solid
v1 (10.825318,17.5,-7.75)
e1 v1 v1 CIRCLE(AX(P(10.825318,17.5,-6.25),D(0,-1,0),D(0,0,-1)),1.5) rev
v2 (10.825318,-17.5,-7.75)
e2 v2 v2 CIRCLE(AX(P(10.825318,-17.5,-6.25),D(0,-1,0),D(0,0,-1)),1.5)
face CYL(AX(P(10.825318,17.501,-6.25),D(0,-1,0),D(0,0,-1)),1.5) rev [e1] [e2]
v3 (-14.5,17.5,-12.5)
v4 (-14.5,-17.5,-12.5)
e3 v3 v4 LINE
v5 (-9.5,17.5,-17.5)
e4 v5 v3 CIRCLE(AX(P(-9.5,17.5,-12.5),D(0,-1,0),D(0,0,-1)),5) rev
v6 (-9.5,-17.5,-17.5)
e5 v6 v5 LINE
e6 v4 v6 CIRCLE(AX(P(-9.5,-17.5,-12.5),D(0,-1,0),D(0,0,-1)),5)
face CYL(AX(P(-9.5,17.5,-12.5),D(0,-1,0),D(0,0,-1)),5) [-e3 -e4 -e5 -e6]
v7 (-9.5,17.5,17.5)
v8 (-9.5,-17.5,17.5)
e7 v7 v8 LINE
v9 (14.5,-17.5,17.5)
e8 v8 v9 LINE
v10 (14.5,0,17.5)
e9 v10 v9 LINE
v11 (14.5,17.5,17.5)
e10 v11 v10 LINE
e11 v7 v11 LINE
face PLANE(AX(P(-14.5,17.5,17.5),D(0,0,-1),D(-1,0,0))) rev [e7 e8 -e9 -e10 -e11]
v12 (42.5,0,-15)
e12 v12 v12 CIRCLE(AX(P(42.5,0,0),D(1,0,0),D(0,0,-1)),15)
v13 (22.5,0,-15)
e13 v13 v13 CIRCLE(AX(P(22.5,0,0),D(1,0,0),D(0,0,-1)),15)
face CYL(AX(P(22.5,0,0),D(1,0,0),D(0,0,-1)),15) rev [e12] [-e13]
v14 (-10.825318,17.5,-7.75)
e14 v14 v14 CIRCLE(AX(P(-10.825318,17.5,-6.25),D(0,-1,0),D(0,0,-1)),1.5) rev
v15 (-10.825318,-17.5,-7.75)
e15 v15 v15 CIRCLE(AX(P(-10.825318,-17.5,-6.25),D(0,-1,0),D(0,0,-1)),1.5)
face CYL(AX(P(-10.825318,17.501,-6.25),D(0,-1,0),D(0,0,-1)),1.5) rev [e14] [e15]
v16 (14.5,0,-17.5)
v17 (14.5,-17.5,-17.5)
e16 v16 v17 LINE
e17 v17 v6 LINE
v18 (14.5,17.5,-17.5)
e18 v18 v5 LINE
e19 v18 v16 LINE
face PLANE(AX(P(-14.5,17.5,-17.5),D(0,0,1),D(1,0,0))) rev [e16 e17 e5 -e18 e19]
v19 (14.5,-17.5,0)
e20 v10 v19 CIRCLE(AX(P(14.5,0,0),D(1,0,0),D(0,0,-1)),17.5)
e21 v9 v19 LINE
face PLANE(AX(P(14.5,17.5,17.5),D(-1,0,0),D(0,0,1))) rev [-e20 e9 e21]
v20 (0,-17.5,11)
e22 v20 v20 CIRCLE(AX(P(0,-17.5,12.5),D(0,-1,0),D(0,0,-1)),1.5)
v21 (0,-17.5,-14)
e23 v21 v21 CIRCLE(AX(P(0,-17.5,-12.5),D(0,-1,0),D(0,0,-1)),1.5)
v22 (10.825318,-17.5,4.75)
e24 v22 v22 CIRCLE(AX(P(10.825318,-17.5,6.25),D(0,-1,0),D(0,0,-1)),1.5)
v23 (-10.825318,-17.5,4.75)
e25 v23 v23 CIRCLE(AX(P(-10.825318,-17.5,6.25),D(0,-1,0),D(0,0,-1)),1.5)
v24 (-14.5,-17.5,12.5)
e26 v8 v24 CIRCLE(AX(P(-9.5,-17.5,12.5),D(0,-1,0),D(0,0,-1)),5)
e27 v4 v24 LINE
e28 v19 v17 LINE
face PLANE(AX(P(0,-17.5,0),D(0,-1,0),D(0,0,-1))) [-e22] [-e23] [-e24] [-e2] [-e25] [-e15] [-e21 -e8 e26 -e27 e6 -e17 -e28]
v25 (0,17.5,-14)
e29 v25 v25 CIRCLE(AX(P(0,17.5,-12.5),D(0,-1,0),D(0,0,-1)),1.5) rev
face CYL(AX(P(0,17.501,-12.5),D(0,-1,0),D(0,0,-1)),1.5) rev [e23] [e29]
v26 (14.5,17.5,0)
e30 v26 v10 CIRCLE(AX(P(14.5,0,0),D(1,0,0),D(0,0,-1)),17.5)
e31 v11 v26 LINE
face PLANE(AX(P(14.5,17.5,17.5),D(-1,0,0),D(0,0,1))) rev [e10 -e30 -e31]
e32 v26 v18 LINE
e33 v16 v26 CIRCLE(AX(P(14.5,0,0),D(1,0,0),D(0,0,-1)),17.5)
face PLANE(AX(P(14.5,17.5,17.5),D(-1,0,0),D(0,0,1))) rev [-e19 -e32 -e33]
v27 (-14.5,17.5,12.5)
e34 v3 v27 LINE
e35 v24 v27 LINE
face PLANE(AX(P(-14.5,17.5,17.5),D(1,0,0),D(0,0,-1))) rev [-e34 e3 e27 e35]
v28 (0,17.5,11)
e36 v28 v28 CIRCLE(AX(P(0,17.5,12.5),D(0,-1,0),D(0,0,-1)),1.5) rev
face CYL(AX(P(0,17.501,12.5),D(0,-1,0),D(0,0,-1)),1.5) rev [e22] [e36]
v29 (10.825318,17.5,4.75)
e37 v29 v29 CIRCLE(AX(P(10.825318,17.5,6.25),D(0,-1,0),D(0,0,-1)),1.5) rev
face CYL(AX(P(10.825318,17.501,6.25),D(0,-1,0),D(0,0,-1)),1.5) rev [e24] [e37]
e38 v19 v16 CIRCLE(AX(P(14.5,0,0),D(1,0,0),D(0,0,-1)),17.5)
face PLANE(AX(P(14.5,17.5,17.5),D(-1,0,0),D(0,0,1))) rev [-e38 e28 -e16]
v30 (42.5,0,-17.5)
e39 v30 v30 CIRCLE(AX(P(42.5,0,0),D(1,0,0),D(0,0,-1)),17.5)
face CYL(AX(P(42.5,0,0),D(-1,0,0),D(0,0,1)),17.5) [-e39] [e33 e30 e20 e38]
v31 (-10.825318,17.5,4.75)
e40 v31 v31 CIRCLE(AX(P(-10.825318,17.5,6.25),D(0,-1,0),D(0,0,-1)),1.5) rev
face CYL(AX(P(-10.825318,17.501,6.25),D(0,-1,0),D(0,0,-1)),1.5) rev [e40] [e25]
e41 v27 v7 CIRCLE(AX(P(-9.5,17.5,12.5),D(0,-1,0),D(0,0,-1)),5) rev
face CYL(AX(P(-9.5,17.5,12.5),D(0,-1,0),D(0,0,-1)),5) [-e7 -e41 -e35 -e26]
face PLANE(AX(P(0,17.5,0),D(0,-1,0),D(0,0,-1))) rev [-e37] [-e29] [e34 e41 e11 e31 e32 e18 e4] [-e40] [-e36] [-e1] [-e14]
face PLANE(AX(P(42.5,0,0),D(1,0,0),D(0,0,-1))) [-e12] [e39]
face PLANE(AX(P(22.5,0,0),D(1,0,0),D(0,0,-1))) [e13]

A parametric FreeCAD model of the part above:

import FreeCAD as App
import Part
import Sketcher
from FreeCAD import Vector
Q = App.Units.Quantity


def edges_at(feature, points):
    """Names of the edges that pass closest to the given points."""
    edges = feature.Shape.Edges
    near = lambda p: min(range(len(edges)), key=lambda i: edges[i].distToShape(Part.Vertex(*p))[0])
    return sorted({f"Edge{near(p) + 1}" for p in points})


def add_polygon(sketch, points):
    """Adds a closed chain of lines whose ends are joined by coincident constraints."""
    first, n = sketch.GeometryCount, len(points)
    for a, b in zip(points, points[1:] + points[:1]):
        sketch.addGeometry(Part.LineSegment(App.Vector(*a, 0), App.Vector(*b, 0)), False)
    for i in range(n):
        sketch.addConstraint(Sketcher.Constraint("Coincident", first + i, 2, first + (i + 1) % n, 1))

doc = App.newDocument("Part")
body = doc.addObject("PartDesign::Body", "Body")

# Sketch on XZ plane
sketch1 = body.newObject("Sketcher::SketchObject", "Sketch")
sketch1.AttachmentSupport = (doc.getObject("XZ_Plane"), [""])
sketch1.MapMode = "FlatFace"
add_polygon(sketch1, [(-14.5, -17.5), (-14.5, 17.5), (14.5, 17.5), (14.5, -17.5)])  # lines 0-3
sketch1.addConstraint([
    Sketcher.Constraint("Vertical", 0),
    Sketcher.Constraint("Horizontal", 1),
    Sketcher.Constraint("Vertical", 2),
    Sketcher.Constraint("Horizontal", 3),
    Sketcher.Constraint("Symmetric", 0, 2, 2, 2, -1, 1),
    Sketcher.Constraint("DistanceX", 1, 1, 1, 2, Q("29 mm")),
    Sketcher.Constraint("DistanceY", 0, 1, 0, 2, Q("35 mm")),
])
pad1 = body.newObject("PartDesign::Pad", "Pad")
pad1.Profile = sketch1
pad1.Length = 35
pad1.Midplane = True
doc.recompute()

fillet = body.newObject("PartDesign::Fillet", "Fillet")
fillet.Base = (pad1, edges_at(pad1, [(-14.5, 0, 17.5), (-14.5, 0, -17.5)]))
fillet.Radius = 5

# Sketch on YZ plane
sketch2 = body.newObject("Sketcher::SketchObject", "Sketch001")
sketch2.AttachmentSupport = (doc.getObject("YZ_Plane"), [""])
sketch2.MapMode = "FlatFace"
sketch2.AttachmentOffset = App.Placement(Vector(0, 0, 14.5), App.Rotation())
sketch2.addGeometry(Part.Circle(Vector(0, 0, 0), Vector(0, 0, 1), 17.5), False)
sketch2.addConstraint([
    Sketcher.Constraint("Coincident", 0, 3, -1, 1),
    Sketcher.Constraint("Diameter", 0, Q("35 mm")),
])
pad2 = body.newObject("PartDesign::Pad", "Pad001")
pad2.Profile = sketch2
pad2.Length = 28

# Sketch on YZ plane
sketch3 = body.newObject("Sketcher::SketchObject", "Sketch002")
sketch3.AttachmentSupport = (doc.getObject("YZ_Plane"), [""])
sketch3.MapMode = "FlatFace"
sketch3.AttachmentOffset = App.Placement(Vector(0, 0, 42.5), App.Rotation())
sketch3.addGeometry(Part.Circle(Vector(0, 0, 0), Vector(0, 0, 1), 15), False)
sketch3.addConstraint([
    Sketcher.Constraint("Coincident", 0, 3, -1, 1),
    Sketcher.Constraint("Diameter", 0, Q("30 mm")),
])
pocket1 = body.newObject("PartDesign::Pocket", "Pocket")
pocket1.Profile = sketch3
pocket1.Length = 20

# Sketch on XZ plane
sketch4 = body.newObject("Sketcher::SketchObject", "Sketch003")
sketch4.AttachmentSupport = (doc.getObject("XZ_Plane"), [""])
sketch4.MapMode = "FlatFace"
sketch4.AttachmentOffset = App.Placement(Vector(0, 0, 17.5), App.Rotation())
sketch4.addGeometry(Part.Circle(Vector(0, 12.5, 0), Vector(0, 0, 1), 1.5), False)
sketch4.addConstraint([
    Sketcher.Constraint("PointOnObject", 0, 3, -2),
    Sketcher.Constraint("Diameter", 0, Q("3 mm")),
    Sketcher.Constraint("DistanceY", -1, 1, 0, 3, Q("12.5 mm")),
])
pocket2 = body.newObject("PartDesign::Pocket", "Pocket001")
pocket2.Profile = sketch4
pocket2.Type = "UpToFirst"

# Sketch on XZ plane
sketch5 = body.newObject("Sketcher::SketchObject", "Sketch004")
sketch5.AttachmentSupport = (doc.getObject("XZ_Plane"), [""])
sketch5.MapMode = "FlatFace"
sketch5.AttachmentOffset = App.Placement(Vector(0, 0, 17.5), App.Rotation())
sketch5.addGeometry(Part.Circle(Vector(10.825318, 6.25, 0), Vector(0, 0, 1), 1.5), False)
sketch5.addConstraint([
    Sketcher.Constraint("Diameter", 0, Q("3 mm")),
    Sketcher.Constraint("DistanceY", -1, 1, 0, 3, Q("6.25 mm")),
    Sketcher.Constraint("DistanceX", -1, 1, 0, 3, Q("10.825318 mm")),
])
pocket3 = body.newObject("PartDesign::Pocket", "Pocket002")
pocket3.Profile = sketch5
pocket3.Type = "UpToFirst"

# Sketch on XZ plane
sketch6 = body.newObject("Sketcher::SketchObject", "Sketch005")
sketch6.AttachmentSupport = (doc.getObject("XZ_Plane"), [""])
sketch6.MapMode = "FlatFace"
sketch6.AttachmentOffset = App.Placement(Vector(0, 0, 17.5), App.Rotation())
sketch6.addGeometry(Part.Circle(Vector(10.825318, -6.25, 0), Vector(0, 0, 1), 1.5), False)
sketch6.addConstraint([
    Sketcher.Constraint("Diameter", 0, Q("3 mm")),
    Sketcher.Constraint("DistanceY", 0, 3, -1, 1, Q("6.25 mm")),
    Sketcher.Constraint("DistanceX", -1, 1, 0, 3, Q("10.825318 mm")),
])
pocket4 = body.newObject("PartDesign::Pocket", "Pocket003")
pocket4.Profile = sketch6
pocket4.Type = "UpToFirst"

# Sketch on XZ plane
sketch7 = body.newObject("Sketcher::SketchObject", "Sketch006")
sketch7.AttachmentSupport = (doc.getObject("XZ_Plane"), [""])
sketch7.MapMode = "FlatFace"
sketch7.AttachmentOffset = App.Placement(Vector(0, 0, 17.5), App.Rotation())
sketch7.addGeometry(Part.Circle(Vector(0, -12.5, 0), Vector(0, 0, 1), 1.5), False)
sketch7.addConstraint([
    Sketcher.Constraint("PointOnObject", 0, 3, -2),
    Sketcher.Constraint("Diameter", 0, Q("3 mm")),
    Sketcher.Constraint("DistanceY", 0, 3, -1, 1, Q("12.5 mm")),
])
pocket5 = body.newObject("PartDesign::Pocket", "Pocket004")
pocket5.Profile = sketch7
pocket5.Type = "UpToFirst"

# Sketch on XZ plane
sketch8 = body.newObject("Sketcher::SketchObject", "Sketch007")
sketch8.AttachmentSupport = (doc.getObject("XZ_Plane"), [""])
sketch8.MapMode = "FlatFace"
sketch8.AttachmentOffset = App.Placement(Vector(0, 0, 17.5), App.Rotation())
sketch8.addGeometry(Part.Circle(Vector(-10.825318, -6.25, 0), Vector(0, 0, 1), 1.5), False)
sketch8.addConstraint([
    Sketcher.Constraint("Diameter", 0, Q("3 mm")),
    Sketcher.Constraint("DistanceY", 0, 3, -1, 1, Q("6.25 mm")),
    Sketcher.Constraint("DistanceX", 0, 3, -1, 1, Q("10.825318 mm")),
])
pocket6 = body.newObject("PartDesign::Pocket", "Pocket005")
pocket6.Profile = sketch8
pocket6.Type = "UpToFirst"

# Sketch on XZ plane
sketch9 = body.newObject("Sketcher::SketchObject", "Sketch008")
sketch9.AttachmentSupport = (doc.getObject("XZ_Plane"), [""])
sketch9.MapMode = "FlatFace"
sketch9.AttachmentOffset = App.Placement(Vector(0, 0, 17.5), App.Rotation())
sketch9.addGeometry(Part.Circle(Vector(-10.825318, 6.25, 0), Vector(0, 0, 1), 1.5), False)
sketch9.addConstraint([
    Sketcher.Constraint("Diameter", 0, Q("3 mm")),
    Sketcher.Constraint("DistanceY", -1, 1, 0, 3, Q("6.25 mm")),
    Sketcher.Constraint("DistanceX", 0, 3, -1, 1, Q("10.825318 mm")),
])
pocket7 = body.newObject("PartDesign::Pocket", "Pocket006")
pocket7.Profile = sketch9
pocket7.Type = "UpToFirst"

doc.recompute()
